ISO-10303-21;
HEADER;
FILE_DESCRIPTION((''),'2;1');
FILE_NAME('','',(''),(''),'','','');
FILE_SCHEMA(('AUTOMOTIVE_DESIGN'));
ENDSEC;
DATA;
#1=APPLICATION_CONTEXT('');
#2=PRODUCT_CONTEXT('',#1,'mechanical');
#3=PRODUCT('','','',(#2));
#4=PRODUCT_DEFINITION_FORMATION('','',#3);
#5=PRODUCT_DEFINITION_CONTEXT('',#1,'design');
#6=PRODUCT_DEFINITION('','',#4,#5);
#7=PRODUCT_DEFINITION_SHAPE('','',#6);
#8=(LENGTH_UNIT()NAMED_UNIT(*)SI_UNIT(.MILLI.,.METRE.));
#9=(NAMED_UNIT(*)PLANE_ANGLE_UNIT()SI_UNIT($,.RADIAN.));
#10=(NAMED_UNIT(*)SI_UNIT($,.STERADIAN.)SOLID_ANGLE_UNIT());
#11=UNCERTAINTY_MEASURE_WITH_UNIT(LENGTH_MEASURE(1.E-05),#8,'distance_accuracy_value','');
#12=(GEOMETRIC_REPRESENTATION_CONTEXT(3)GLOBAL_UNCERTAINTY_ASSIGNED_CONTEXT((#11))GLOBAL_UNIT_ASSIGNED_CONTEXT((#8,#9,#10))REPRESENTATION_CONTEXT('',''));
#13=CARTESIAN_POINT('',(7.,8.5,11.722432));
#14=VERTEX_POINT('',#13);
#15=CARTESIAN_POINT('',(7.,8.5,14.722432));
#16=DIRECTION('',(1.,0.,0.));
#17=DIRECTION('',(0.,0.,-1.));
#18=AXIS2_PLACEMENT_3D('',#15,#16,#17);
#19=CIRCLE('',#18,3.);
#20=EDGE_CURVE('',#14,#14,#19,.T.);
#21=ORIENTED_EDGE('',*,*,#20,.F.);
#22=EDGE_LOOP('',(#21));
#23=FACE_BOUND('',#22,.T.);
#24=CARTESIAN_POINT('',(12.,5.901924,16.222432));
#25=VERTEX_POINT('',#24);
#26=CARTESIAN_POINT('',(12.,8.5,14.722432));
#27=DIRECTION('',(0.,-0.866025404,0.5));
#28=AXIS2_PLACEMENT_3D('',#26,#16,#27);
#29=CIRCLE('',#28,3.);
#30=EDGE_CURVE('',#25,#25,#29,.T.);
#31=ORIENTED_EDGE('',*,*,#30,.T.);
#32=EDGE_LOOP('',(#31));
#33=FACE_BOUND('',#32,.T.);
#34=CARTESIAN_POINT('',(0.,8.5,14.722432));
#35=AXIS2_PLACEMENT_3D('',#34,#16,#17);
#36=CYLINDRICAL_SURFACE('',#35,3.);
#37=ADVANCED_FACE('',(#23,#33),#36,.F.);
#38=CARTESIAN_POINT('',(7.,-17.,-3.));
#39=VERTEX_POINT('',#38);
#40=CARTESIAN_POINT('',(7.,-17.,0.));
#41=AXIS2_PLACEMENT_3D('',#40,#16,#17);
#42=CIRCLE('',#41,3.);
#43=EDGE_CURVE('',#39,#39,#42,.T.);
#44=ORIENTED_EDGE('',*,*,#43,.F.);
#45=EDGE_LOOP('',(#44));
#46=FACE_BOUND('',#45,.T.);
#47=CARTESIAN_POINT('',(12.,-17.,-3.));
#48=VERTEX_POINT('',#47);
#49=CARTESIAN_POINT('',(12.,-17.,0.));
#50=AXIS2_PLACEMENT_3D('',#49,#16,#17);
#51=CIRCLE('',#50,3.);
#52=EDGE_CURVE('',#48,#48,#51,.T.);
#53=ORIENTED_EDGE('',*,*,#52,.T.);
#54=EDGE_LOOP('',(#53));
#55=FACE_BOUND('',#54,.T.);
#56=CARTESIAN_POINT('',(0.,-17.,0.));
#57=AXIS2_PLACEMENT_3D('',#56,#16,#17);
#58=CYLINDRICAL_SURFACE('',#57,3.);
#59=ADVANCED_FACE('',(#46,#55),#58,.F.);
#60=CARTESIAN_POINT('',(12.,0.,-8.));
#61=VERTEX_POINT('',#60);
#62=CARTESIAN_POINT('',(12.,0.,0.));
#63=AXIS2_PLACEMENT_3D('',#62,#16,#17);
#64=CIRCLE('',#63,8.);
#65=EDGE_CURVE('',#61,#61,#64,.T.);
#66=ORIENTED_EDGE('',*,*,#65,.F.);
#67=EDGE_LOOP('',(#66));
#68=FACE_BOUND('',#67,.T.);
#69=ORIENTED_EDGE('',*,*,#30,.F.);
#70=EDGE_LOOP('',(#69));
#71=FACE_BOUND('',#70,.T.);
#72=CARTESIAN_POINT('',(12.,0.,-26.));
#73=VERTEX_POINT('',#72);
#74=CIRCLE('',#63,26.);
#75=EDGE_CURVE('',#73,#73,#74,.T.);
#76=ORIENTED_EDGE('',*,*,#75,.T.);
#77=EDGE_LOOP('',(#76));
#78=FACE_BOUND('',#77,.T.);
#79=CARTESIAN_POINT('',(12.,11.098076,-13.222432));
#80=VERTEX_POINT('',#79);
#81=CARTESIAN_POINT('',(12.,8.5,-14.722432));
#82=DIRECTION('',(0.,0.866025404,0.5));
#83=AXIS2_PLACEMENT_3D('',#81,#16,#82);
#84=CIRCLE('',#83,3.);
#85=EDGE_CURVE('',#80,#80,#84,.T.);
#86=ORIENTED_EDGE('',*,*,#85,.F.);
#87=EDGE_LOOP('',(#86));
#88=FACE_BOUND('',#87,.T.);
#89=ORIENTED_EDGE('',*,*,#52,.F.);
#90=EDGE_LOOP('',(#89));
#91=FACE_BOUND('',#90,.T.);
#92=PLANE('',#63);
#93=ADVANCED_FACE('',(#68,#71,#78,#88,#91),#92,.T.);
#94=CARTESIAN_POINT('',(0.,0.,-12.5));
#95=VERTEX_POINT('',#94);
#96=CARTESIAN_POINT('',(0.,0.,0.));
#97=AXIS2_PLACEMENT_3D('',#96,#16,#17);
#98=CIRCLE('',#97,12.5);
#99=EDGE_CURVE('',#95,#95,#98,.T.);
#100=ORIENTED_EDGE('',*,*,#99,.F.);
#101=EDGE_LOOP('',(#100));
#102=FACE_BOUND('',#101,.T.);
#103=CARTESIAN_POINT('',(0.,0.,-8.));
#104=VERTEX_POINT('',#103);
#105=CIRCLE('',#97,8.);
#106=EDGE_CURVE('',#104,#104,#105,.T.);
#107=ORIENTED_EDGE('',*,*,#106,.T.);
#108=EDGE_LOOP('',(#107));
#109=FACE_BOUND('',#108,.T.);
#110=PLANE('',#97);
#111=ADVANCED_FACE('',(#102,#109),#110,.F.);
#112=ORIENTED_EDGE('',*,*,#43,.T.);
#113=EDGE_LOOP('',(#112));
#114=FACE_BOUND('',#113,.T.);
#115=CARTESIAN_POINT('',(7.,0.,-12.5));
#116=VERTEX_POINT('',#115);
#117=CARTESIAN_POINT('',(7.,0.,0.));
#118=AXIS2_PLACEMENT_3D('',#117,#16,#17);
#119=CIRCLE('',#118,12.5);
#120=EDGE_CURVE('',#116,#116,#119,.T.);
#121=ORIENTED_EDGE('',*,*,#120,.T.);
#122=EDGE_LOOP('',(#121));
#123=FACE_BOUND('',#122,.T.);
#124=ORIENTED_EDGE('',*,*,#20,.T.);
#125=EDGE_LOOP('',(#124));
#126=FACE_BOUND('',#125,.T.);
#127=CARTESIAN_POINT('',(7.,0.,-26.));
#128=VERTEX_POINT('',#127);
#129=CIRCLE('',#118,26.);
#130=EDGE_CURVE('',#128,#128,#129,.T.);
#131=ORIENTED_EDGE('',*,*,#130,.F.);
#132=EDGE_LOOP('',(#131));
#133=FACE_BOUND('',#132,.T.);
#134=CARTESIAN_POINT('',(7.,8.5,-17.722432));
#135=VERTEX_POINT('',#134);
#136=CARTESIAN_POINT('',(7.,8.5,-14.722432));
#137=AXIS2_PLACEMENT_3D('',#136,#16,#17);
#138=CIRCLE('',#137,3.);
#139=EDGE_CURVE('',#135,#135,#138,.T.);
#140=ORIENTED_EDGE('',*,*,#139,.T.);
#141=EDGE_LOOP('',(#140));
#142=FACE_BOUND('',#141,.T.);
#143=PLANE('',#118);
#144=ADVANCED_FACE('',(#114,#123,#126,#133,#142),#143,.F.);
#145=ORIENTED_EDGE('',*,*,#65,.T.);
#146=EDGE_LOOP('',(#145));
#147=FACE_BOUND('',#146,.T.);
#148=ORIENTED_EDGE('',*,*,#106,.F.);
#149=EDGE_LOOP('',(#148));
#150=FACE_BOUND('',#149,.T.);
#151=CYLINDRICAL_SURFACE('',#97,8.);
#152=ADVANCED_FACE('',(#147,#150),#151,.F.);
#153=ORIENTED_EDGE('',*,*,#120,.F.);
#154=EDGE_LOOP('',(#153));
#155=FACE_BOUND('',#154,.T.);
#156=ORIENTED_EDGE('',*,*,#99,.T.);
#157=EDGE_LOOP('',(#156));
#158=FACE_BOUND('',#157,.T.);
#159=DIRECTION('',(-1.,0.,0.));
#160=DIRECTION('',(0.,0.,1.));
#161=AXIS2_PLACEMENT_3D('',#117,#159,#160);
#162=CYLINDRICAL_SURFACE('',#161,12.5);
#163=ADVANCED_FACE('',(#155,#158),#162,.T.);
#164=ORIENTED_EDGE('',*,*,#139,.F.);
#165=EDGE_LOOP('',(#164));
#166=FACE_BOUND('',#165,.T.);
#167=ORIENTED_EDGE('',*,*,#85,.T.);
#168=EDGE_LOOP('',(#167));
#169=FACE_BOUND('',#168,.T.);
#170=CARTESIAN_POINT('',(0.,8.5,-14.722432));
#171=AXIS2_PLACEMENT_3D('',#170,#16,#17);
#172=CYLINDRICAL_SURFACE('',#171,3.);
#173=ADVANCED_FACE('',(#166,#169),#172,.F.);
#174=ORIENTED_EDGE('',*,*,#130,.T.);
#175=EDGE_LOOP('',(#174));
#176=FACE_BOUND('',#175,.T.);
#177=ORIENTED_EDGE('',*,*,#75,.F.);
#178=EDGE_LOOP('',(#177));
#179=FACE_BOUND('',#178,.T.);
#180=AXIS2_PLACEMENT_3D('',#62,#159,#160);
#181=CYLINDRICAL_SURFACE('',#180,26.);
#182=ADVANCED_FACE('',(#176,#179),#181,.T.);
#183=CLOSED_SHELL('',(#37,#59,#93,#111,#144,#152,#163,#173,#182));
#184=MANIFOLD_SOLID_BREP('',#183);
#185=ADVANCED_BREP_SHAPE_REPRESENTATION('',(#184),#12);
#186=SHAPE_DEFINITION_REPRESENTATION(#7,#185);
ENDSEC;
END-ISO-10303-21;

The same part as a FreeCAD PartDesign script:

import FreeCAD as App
import Part
import Sketcher
from FreeCAD import Vector

doc = App.newDocument("Part")
body = doc.addObject("PartDesign::Body", "Body")

# Sketch on YZ plane
sketch1 = body.newObject("Sketcher::SketchObject", "Sketch")
sketch1.AttachmentSupport = (doc.getObject("YZ_Plane"), [""])
sketch1.MapMode = "FlatFace"
sketch1.addGeometry(Part.Circle(Vector(0, 0, 0), Vector(0, 0, 1), 12), False)
sketch1.addConstraint([
    Sketcher.Constraint("Coincident", 0, 3, -1, 1),
    Sketcher.Constraint("Diameter", 0, 25.0),
])
pad1 = body.newObject("PartDesign::Pad", "Pad")
pad1.Profile = sketch1
pad1.Length = 7

# Sketch on YZ plane
sketch2 = body.newObject("Sketcher::SketchObject", "Sketch001")
sketch2.AttachmentSupport = (doc.getObject("YZ_Plane"), [""])
sketch2.MapMode = "FlatFace"
sketch2.AttachmentOffset = App.Placement(Vector(0, 0, 7), App.Rotation())
sketch2.addGeometry(Part.Circle(Vector(0, 0, 0), Vector(0, 0, 1), 26), False)
sketch2.addConstraint([
    Sketcher.Constraint("Coincident", 0, 3, -1, 1),
    Sketcher.Constraint("Diameter", 0, 52.0),
])
pad2 = body.newObject("PartDesign::Pad", "Pad001")
pad2.Profile = sketch2
pad2.Length = 5

# Sketch on YZ plane
sketch3 = body.newObject("Sketcher::SketchObject", "Sketch002")
sketch3.AttachmentSupport = (doc.getObject("YZ_Plane"), [""])
sketch3.MapMode = "FlatFace"
sketch3.AttachmentOffset = App.Placement(Vector(0, 0, 12), App.Rotation())
sketch3.addGeometry(Part.Circle(Vector(0, 0, 0), Vector(0, 0, 1), 8), False)
sketch3.addConstraint([
    Sketcher.Constraint("Coincident", 0, 3, -1, 1),
    Sketcher.Constraint("Diameter", 0, 16.0),
])
pocket1 = body.newObject("PartDesign::Pocket", "Pocket")
pocket1.Profile = sketch3
pocket1.Type = "ThroughAll"

# Sketch on YZ plane
sketch4 = body.newObject("Sketcher::SketchObject", "Sketch003")
sketch4.AttachmentSupport = (doc.getObject("YZ_Plane"), [""])
sketch4.MapMode = "FlatFace"
sketch4.AttachmentOffset = App.Placement(Vector(0, 0, 12), App.Rotation())
sketch4.addGeometry(Part.Circle(Vector(-17, 0, 0), Vector(0, 0, 1), 3), False)
sketch4.addConstraint([
    Sketcher.Constraint("PointOnObject", 0, 3, -1),
    Sketcher.Constraint("Diameter", 0, 6.0),
    Sketcher.Constraint("DistanceX", 0, 3, -1, 1, 17.0),
])
pocket2 = body.newObject("PartDesign::Pocket", "Pocket001")
pocket2.Profile = sketch4
pocket2.Type = "ThroughAll"
doc.recompute()

polarpattern = body.newObject("PartDesign::PolarPattern", "PolarPattern")
polarpattern.Originals = [pocket2]
polarpattern.Axis = (doc.getObject("X_Axis"), [""])
polarpattern.Angle = 360
polarpattern.Occurrences = 3
body.Tip = polarpattern

doc.recompute()
